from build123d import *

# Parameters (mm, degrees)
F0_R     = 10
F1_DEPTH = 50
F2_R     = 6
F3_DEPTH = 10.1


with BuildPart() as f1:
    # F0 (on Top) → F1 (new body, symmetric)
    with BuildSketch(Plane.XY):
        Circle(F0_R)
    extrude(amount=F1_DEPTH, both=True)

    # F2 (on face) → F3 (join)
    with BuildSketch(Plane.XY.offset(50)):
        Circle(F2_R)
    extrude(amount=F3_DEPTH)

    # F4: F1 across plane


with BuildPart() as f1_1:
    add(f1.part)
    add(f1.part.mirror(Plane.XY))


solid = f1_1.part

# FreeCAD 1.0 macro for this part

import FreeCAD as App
import Part
import Sketcher

V = App.Vector

doc = App.newDocument("Part")
body = doc.addObject("PartDesign::Body", "Body")

sketch1 = doc.addObject("Sketcher::SketchObject", "Sketch")
body.addObject(sketch1)
sketch1.AttachmentSupport = (doc.XY_Plane, [""])
sketch1.MapMode = "FlatFace"
sketch1.addGeometry(Part.Circle(V(0, 0, 0), V(0, 0, 1), 10), False)
sketch1.addConstraint(Sketcher.Constraint("Coincident", 0, 3, -1, 1))
sketch1.addConstraint(Sketcher.Constraint("Diameter", 0, 20.0))
pad1 = doc.addObject("PartDesign::Pad", "Pad")
body.addObject(pad1)
pad1.Profile = sketch1
pad1.Length = 100
pad1.Midplane = True

sketch2 = doc.addObject("Sketcher::SketchObject", "Sketch001")
body.addObject(sketch2)
sketch2.AttachmentSupport = (doc.XY_Plane, [""])
sketch2.MapMode = "FlatFace"
sketch2.AttachmentOffset = App.Placement(V(0, 0, 50), App.Rotation())
sketch2.addGeometry(Part.Circle(V(0, 0, 0), V(0, 0, 1), 6), False)
sketch2.addConstraint(Sketcher.Constraint("Coincident", 0, 3, -1, 1))
sketch2.addConstraint(Sketcher.Constraint("Diameter", 0, 12.0))
pad2 = doc.addObject("PartDesign::Pad", "Pad001")
body.addObject(pad2)
pad2.Profile = sketch2
pad2.Length = 10.1
body2 = doc.addObject("PartDesign::Body", "Body001")
doc.recompute()

body2.BaseFeature = body
doc.recompute()

mirroring = doc.addObject("Part::Mirroring", "Mirroring")
mirroring.Source = body
mirroring.Base = V(0, 0, 0)
mirroring.Normal = V(0, 0, 1)
body3 = doc.addObject("PartDesign::Body", "Body002")
body3.BaseFeature = mirroring
boolean = doc.addObject("PartDesign::Boolean", "Boolean")
body2.addObject(boolean)
boolean.Type = "Fuse"
boolean.addObjects([body3])
doc.recompute()
mirroring.Visibility = False

doc.recompute()
